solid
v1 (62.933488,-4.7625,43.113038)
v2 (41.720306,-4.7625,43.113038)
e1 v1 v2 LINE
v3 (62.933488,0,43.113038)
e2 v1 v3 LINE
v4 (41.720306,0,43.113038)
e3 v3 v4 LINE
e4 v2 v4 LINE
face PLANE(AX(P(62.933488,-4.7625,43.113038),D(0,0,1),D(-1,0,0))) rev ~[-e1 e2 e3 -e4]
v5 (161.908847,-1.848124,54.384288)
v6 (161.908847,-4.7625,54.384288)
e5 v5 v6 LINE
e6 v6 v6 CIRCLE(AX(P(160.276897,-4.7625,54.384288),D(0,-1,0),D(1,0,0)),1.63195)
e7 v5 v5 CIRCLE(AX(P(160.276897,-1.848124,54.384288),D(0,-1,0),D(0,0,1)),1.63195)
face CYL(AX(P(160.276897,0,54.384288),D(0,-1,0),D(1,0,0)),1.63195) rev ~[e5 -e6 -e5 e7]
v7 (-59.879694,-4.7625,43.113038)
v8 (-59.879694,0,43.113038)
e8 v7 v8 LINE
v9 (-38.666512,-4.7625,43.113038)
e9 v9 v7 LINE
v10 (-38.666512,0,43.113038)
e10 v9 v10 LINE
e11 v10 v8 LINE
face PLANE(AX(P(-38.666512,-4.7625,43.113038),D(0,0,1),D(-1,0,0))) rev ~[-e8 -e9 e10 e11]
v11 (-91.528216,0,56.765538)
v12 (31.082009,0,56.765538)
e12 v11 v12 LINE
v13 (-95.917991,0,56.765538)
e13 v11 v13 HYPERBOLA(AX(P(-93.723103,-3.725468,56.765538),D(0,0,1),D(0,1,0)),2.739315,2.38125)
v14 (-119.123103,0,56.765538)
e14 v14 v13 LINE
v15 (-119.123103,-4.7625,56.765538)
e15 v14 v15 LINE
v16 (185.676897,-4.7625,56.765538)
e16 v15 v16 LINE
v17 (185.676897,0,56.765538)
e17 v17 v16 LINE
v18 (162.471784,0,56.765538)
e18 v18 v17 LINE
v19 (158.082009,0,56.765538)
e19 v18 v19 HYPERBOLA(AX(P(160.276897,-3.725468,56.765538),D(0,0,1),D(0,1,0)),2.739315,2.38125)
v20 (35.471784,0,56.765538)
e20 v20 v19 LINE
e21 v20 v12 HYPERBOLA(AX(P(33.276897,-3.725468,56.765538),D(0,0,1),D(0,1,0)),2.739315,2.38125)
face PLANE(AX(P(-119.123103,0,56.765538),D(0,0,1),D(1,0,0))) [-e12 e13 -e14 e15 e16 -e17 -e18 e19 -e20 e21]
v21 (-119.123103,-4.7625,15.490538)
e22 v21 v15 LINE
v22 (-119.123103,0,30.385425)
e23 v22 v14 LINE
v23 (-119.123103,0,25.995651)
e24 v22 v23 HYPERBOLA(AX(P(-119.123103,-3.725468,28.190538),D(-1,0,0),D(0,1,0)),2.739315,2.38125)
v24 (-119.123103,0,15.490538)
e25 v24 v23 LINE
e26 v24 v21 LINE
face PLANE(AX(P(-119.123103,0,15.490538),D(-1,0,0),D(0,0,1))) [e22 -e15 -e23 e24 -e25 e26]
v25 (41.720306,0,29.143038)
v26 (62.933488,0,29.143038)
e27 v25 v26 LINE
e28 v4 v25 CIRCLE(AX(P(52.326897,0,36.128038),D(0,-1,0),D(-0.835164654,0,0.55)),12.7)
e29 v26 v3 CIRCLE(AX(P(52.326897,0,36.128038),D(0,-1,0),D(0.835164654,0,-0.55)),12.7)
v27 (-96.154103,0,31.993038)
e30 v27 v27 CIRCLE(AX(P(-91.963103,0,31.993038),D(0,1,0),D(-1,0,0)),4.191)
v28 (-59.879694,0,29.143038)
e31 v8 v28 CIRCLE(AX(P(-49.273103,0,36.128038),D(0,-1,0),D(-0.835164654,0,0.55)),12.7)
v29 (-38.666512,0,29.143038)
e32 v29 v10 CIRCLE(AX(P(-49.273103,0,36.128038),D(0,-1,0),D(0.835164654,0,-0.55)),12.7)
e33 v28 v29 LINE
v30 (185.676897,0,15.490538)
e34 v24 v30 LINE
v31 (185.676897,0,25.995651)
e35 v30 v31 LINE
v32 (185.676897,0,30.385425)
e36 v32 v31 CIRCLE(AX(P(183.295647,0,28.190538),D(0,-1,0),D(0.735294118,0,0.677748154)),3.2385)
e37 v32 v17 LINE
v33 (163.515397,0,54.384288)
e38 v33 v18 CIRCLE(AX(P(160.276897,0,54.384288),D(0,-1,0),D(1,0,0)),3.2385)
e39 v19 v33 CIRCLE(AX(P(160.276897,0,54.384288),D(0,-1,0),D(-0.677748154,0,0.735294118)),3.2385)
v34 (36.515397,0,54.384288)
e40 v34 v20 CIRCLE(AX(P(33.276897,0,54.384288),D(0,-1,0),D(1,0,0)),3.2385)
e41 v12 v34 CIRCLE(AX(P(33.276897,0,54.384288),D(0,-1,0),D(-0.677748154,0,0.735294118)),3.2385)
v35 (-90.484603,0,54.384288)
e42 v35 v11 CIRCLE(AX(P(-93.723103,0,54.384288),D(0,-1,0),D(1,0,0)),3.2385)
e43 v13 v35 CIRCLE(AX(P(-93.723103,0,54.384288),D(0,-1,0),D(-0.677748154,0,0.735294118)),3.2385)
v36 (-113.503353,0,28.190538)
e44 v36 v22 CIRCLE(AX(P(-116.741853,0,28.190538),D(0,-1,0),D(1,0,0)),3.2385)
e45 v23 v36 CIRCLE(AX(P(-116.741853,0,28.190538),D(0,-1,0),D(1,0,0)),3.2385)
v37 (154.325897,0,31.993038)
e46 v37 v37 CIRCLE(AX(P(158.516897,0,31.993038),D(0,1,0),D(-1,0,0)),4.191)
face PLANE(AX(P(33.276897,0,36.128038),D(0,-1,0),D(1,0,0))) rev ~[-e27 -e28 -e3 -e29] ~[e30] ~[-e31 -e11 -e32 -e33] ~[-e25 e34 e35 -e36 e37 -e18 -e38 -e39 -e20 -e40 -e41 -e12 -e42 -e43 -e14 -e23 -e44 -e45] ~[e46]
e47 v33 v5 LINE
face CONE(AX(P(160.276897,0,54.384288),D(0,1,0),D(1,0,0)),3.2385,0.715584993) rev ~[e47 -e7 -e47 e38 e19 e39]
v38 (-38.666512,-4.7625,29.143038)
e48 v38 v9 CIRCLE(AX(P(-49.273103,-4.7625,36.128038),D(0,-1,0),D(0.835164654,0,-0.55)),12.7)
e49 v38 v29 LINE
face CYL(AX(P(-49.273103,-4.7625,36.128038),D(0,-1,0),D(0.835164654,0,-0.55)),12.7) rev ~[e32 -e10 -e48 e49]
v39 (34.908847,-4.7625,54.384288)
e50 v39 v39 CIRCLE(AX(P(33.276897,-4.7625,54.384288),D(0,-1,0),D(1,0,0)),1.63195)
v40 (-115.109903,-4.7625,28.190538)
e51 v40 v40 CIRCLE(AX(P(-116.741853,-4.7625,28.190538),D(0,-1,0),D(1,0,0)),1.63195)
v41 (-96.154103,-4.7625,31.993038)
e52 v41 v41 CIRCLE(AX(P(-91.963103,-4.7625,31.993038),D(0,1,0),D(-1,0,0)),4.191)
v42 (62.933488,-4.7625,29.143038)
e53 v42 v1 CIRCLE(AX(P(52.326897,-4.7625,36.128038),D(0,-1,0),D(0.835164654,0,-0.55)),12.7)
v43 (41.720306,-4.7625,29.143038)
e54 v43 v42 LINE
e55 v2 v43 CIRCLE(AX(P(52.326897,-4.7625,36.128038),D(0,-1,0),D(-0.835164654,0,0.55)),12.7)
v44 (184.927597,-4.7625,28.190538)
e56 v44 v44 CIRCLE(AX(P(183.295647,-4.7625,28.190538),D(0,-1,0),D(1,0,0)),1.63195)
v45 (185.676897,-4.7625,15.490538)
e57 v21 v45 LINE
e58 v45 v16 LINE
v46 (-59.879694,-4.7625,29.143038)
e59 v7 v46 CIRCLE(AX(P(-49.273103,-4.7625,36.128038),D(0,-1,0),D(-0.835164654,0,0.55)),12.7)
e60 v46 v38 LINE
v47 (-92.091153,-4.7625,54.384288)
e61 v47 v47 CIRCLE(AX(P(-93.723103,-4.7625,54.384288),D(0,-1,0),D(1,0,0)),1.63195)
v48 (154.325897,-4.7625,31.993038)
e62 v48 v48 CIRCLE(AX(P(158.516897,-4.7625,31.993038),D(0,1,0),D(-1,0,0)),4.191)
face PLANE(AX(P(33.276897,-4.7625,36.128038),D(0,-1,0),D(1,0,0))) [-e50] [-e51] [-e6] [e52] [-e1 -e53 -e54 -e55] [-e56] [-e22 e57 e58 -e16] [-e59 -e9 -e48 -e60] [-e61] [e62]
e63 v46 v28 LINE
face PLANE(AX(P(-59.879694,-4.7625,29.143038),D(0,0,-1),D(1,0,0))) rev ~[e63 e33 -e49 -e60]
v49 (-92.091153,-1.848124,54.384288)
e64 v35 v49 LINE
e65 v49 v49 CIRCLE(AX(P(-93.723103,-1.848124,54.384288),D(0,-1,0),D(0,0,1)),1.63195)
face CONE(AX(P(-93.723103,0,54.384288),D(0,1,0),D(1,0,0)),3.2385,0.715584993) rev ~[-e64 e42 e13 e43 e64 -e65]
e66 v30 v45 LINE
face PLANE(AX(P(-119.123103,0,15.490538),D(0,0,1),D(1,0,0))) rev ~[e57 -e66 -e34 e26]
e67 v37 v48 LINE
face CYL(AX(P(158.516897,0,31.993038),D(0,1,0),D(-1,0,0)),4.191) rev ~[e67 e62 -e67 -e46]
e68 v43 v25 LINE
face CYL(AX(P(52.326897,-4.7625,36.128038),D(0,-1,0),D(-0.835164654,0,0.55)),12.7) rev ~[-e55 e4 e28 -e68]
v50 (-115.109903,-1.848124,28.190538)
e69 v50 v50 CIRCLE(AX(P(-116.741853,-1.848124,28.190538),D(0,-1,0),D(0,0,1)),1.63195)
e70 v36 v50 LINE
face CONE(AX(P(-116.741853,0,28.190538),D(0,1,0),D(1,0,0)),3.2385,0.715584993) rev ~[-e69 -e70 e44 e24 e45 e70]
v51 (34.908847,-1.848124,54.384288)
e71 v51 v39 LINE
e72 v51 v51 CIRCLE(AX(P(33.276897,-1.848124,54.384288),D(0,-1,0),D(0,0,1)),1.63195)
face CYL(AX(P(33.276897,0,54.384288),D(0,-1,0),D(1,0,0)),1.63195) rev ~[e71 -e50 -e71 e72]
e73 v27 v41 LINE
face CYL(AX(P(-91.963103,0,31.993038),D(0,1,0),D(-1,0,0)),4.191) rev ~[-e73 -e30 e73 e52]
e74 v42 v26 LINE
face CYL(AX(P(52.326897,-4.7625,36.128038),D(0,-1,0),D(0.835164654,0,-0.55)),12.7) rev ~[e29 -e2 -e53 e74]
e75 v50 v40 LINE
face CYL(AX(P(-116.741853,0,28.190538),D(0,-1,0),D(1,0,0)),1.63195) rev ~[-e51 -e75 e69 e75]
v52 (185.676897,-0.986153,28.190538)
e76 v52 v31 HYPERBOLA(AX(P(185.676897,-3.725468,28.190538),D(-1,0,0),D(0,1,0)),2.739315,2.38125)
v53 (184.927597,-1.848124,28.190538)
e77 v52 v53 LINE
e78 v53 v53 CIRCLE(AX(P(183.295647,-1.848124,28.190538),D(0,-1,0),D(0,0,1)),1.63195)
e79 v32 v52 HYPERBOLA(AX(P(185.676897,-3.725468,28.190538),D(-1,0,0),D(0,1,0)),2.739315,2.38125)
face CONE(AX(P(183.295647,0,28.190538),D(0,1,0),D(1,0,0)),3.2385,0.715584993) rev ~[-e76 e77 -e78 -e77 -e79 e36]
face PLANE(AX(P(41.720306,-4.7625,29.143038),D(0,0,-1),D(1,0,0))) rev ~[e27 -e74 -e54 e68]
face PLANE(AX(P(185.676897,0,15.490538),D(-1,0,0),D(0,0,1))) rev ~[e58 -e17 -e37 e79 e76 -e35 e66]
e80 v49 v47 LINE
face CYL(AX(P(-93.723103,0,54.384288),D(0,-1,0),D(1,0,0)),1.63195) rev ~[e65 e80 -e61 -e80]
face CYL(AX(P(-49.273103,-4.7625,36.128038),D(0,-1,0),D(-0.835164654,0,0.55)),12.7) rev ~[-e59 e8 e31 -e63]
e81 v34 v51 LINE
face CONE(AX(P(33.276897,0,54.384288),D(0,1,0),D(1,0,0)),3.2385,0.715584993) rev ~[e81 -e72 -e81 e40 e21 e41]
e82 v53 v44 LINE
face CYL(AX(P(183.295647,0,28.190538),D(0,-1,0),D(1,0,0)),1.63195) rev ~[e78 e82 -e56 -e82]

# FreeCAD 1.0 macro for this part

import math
import FreeCAD as App
import Part
import Sketcher

V = App.Vector
Q = App.Units.Quantity

doc = App.newDocument("Part")
body = doc.addObject("PartDesign::Body", "Body")

# Sketch on XZ plane
sketch1 = doc.addObject("Sketcher::SketchObject", "Sketch")
body.addObject(sketch1)
sketch1.AttachmentSupport = (doc.XZ_Plane, [""])
sketch1.MapMode = "FlatFace"
sketch1.addGeometry([
    Part.LineSegment(V(-119.123103, 56.765538, 0), V(-119.123103, 15.490538, 0)),
    Part.LineSegment(V(-119.123103, 15.490538, 0), V(185.676897, 15.490538, 0)),
    Part.LineSegment(V(185.676897, 15.490538, 0), V(185.676897, 56.765538, 0)),
    Part.LineSegment(V(185.676897, 56.765538, 0), V(-119.123103, 56.765538, 0)),
], False)
sketch1.addConstraint([
    Sketcher.Constraint("Coincident", 0, 2, 1, 1),
    Sketcher.Constraint("Coincident", 1, 2, 2, 1),
    Sketcher.Constraint("Coincident", 2, 2, 3, 1),
    Sketcher.Constraint("Coincident", 3, 2, 0, 1),
    Sketcher.Constraint("Vertical", 0),
    Sketcher.Constraint("Horizontal", 1),
    Sketcher.Constraint("Vertical", 2),
    Sketcher.Constraint("Horizontal", 3),
    Sketcher.Constraint("DistanceX", 1, 1, 1, 2, Q("12 in")),
    Sketcher.Constraint("DistanceY", 0, 2, 0, 1, Q("1.625 in")),
    Sketcher.Constraint("DistanceX", 0, 2, -1, 1, Q("119.123103 mm")),
    Sketcher.Constraint("DistanceY", -1, 1, 0, 2, Q("15.490538 mm")),
])
pad1 = doc.addObject("PartDesign::Pad", "Pad")
body.addObject(pad1)
pad1.Profile = sketch1
pad1.Length = Q("0.1875 in")

# Sketch on XZ plane
sketch2 = doc.addObject("Sketcher::SketchObject", "Sketch001")
body.addObject(sketch2)
sketch2.AttachmentSupport = (doc.XZ_Plane, [""])
sketch2.MapMode = "FlatFace"
sketch2.addGeometry([
    Part.Circle(V(-91.963103, 31.993038, 0), V(0, 0, 1), 4.191),
    Part.Circle(V(158.516897, 31.993038, 0), V(0, 0, 1), 4.191),
], False)
sketch2.addConstraint([
    Sketcher.Constraint("Equal", 0, 1),
    Sketcher.Constraint("Horizontal", 0, 3, 1, 3),
    Sketcher.Constraint("Diameter", 0, Q("0.33 in")),
    Sketcher.Constraint("DistanceX", 0, 3, 1, 3, Q("250.48 mm")),
    Sketcher.Constraint("DistanceX", 0, 3, -1, 1, Q("91.963103 mm")),
    Sketcher.Constraint("DistanceY", -1, 1, 0, 3, Q("31.993038 mm")),
])
pocket1 = doc.addObject("PartDesign::Pocket", "Pocket")
body.addObject(pocket1)
pocket1.Profile = sketch2
pocket1.Type = "ThroughAll"
pocket1.Reversed = True

# Sketch on XZ plane
sketch3 = doc.addObject("Sketcher::SketchObject", "Sketch002")
body.addObject(sketch3)
sketch3.AttachmentSupport = (doc.XZ_Plane, [""])
sketch3.MapMode = "FlatFace"
sketch3.addGeometry([
    Part.Circle(V(183.295647, 28.190538, 0), V(0, 0, 1), 1.63195),  # 0
    Part.Circle(V(160.276897, 54.384288, 0), V(0, 0, 1), 1.63195),  # 1
    Part.Circle(V(33.276897, 54.384288, 0), V(0, 0, 1), 1.63195),  # 2
    Part.Circle(V(-93.723103, 54.384288, 0), V(0, 0, 1), 1.63195),  # 3
    Part.Circle(V(-116.741853, 28.190538, 0), V(0, 0, 1), 1.63195),  # 4
], False)
sketch3.addConstraint([
    Sketcher.Constraint("Equal", 0, 1),
    Sketcher.Constraint("Equal", 1, 2),
    Sketcher.Constraint("Equal", 2, 3),
    Sketcher.Constraint("Equal", 3, 4),
    Sketcher.Constraint("Horizontal", 1, 3, 2, 3),
    Sketcher.Constraint("Horizontal", 2, 3, 3, 3),
    Sketcher.Constraint("Horizontal", 0, 3, 4, 3),
    Sketcher.Constraint("DistanceX", 2, 3, 1, 3, Q("5 in")),
    Sketcher.Constraint("DistanceX", 3, 3, 2, 3, Q("5 in")),
    Sketcher.Constraint("Diameter", 0, Q("0.1285 in")),
    Sketcher.Constraint("DistanceX", 1, 3, 0, 3, Q("0.90625 in")),
    Sketcher.Constraint("DistanceY", 0, 3, 1, 3, Q("1.03125 in")),
    Sketcher.Constraint("DistanceX", 4, 3, 3, 3, Q("0.90625 in")),
    Sketcher.Constraint("DistanceX", -1, 1, 0, 3, Q("183.295647 mm")),
    Sketcher.Constraint("DistanceY", -1, 1, 0, 3, Q("28.190538 mm")),
])
doc.recompute()
hole = doc.addObject("PartDesign::Hole", "Hole")
body.addObject(hole)
hole.Profile = sketch3
hole.ThreadType = "None"
hole.Diameter = Q("0.1285 in")
hole.DepthType = "Dimension"
hole.Depth = Q("0.575 in")
hole.DrillPoint = "Angled"
hole.DrillPointAngle = 118
hole.HoleCutType = "Countersink"
hole.HoleCutDiameter = Q("0.255 in")
hole.HoleCutCountersinkAngle = 82
hole.Reversed = True

# Sketch on XZ plane
sketch4 = doc.addObject("Sketcher::SketchObject", "Sketch003")
body.addObject(sketch4)
sketch4.AttachmentSupport = (doc.XZ_Plane, [""])
sketch4.MapMode = "FlatFace"
sketch4.AttachmentOffset = App.Placement(V(0, 0, 0.1875 * 25.4), App.Rotation())
sketch4.addGeometry([
    Part.LineSegment(V(-38.666512, 43.113038, 0), V(-59.879694, 43.113038, 0)),  # 0
    Part.ArcOfCircle(Part.Circle(V(-49.273103, 36.128038, 0), V(0, 0, 1), 12.7), math.radians(146.632987), math.radians(213.367013)),  # 1
    Part.LineSegment(V(-59.879694, 29.143038, 0), V(-38.666512, 29.143038, 0)),  # 2
    Part.ArcOfCircle(Part.Circle(V(-49.273103, 36.128038, 0), V(0, 0, 1), 12.7), math.radians(-33.367013), math.radians(33.367013)),  # 3
    Part.ArcOfCircle(Part.Circle(V(52.326897, 36.128038, 0), V(0, 0, 1), 12.7), math.radians(-33.367013), math.radians(33.367013)),  # 4
    Part.LineSegment(V(62.933488, 43.113038, 0), V(41.720306, 43.113038, 0)),  # 5
    Part.ArcOfCircle(Part.Circle(V(52.326897, 36.128038, 0), V(0, 0, 1), 12.7), math.radians(146.632987), math.radians(213.367013)),  # 6
    Part.LineSegment(V(41.720306, 29.143038, 0), V(62.933488, 29.143038, 0)),  # 7
], False)
sketch4.addConstraint([
    Sketcher.Constraint("Coincident", 0, 2, 1, 1),
    Sketcher.Constraint("Coincident", 1, 2, 2, 1),
    Sketcher.Constraint("Coincident", 2, 2, 3, 1),
    Sketcher.Constraint("Coincident", 3, 2, 0, 1),
    Sketcher.Constraint("Coincident", 4, 2, 5, 1),
    Sketcher.Constraint("Coincident", 5, 2, 6, 1),
    Sketcher.Constraint("Coincident", 6, 2, 7, 1),
    Sketcher.Constraint("Coincident", 7, 2, 4, 1),
    Sketcher.Constraint("Horizontal", 0),
    Sketcher.Constraint("Horizontal", 2),
    Sketcher.Constraint("Horizontal", 5),
    Sketcher.Constraint("Horizontal", 7),
    Sketcher.Constraint("Coincident", 3, 3, 1, 3),
    Sketcher.Constraint("Coincident", 6, 3, 4, 3),
    Sketcher.Constraint("Equal", 1, 3),
    Sketcher.Constraint("Equal", 3, 4),
    Sketcher.Constraint("Equal", 4, 6),
    Sketcher.Constraint("Horizontal", 3, 3, 4, 3),
    Sketcher.Constraint("Horizontal", 3, 2, 4, 2),
    Sketcher.Constraint("Horizontal", 2, 2, 6, 2),
    Sketcher.Constraint("Vertical", 0, 2, 1, 2),
    Sketcher.Constraint("Radius", 1, Q("0.5 in")),
    Sketcher.Constraint("DistanceX", 1, 3, 4, 3, Q("4 in")),
    Sketcher.Constraint("DistanceY", 1, 2, 0, 2, Q("0.55 in")),
    Sketcher.Constraint("DistanceX", 1, 3, -1, 1, Q("49.273103 mm")),
    Sketcher.Constraint("DistanceY", -1, 1, 1, 3, Q("36.128038 mm")),
])
pocket2 = doc.addObject("PartDesign::Pocket", "Pocket001")
body.addObject(pocket2)
pocket2.Profile = sketch4
pocket2.Length = Q("1 in")

doc.recompute()
